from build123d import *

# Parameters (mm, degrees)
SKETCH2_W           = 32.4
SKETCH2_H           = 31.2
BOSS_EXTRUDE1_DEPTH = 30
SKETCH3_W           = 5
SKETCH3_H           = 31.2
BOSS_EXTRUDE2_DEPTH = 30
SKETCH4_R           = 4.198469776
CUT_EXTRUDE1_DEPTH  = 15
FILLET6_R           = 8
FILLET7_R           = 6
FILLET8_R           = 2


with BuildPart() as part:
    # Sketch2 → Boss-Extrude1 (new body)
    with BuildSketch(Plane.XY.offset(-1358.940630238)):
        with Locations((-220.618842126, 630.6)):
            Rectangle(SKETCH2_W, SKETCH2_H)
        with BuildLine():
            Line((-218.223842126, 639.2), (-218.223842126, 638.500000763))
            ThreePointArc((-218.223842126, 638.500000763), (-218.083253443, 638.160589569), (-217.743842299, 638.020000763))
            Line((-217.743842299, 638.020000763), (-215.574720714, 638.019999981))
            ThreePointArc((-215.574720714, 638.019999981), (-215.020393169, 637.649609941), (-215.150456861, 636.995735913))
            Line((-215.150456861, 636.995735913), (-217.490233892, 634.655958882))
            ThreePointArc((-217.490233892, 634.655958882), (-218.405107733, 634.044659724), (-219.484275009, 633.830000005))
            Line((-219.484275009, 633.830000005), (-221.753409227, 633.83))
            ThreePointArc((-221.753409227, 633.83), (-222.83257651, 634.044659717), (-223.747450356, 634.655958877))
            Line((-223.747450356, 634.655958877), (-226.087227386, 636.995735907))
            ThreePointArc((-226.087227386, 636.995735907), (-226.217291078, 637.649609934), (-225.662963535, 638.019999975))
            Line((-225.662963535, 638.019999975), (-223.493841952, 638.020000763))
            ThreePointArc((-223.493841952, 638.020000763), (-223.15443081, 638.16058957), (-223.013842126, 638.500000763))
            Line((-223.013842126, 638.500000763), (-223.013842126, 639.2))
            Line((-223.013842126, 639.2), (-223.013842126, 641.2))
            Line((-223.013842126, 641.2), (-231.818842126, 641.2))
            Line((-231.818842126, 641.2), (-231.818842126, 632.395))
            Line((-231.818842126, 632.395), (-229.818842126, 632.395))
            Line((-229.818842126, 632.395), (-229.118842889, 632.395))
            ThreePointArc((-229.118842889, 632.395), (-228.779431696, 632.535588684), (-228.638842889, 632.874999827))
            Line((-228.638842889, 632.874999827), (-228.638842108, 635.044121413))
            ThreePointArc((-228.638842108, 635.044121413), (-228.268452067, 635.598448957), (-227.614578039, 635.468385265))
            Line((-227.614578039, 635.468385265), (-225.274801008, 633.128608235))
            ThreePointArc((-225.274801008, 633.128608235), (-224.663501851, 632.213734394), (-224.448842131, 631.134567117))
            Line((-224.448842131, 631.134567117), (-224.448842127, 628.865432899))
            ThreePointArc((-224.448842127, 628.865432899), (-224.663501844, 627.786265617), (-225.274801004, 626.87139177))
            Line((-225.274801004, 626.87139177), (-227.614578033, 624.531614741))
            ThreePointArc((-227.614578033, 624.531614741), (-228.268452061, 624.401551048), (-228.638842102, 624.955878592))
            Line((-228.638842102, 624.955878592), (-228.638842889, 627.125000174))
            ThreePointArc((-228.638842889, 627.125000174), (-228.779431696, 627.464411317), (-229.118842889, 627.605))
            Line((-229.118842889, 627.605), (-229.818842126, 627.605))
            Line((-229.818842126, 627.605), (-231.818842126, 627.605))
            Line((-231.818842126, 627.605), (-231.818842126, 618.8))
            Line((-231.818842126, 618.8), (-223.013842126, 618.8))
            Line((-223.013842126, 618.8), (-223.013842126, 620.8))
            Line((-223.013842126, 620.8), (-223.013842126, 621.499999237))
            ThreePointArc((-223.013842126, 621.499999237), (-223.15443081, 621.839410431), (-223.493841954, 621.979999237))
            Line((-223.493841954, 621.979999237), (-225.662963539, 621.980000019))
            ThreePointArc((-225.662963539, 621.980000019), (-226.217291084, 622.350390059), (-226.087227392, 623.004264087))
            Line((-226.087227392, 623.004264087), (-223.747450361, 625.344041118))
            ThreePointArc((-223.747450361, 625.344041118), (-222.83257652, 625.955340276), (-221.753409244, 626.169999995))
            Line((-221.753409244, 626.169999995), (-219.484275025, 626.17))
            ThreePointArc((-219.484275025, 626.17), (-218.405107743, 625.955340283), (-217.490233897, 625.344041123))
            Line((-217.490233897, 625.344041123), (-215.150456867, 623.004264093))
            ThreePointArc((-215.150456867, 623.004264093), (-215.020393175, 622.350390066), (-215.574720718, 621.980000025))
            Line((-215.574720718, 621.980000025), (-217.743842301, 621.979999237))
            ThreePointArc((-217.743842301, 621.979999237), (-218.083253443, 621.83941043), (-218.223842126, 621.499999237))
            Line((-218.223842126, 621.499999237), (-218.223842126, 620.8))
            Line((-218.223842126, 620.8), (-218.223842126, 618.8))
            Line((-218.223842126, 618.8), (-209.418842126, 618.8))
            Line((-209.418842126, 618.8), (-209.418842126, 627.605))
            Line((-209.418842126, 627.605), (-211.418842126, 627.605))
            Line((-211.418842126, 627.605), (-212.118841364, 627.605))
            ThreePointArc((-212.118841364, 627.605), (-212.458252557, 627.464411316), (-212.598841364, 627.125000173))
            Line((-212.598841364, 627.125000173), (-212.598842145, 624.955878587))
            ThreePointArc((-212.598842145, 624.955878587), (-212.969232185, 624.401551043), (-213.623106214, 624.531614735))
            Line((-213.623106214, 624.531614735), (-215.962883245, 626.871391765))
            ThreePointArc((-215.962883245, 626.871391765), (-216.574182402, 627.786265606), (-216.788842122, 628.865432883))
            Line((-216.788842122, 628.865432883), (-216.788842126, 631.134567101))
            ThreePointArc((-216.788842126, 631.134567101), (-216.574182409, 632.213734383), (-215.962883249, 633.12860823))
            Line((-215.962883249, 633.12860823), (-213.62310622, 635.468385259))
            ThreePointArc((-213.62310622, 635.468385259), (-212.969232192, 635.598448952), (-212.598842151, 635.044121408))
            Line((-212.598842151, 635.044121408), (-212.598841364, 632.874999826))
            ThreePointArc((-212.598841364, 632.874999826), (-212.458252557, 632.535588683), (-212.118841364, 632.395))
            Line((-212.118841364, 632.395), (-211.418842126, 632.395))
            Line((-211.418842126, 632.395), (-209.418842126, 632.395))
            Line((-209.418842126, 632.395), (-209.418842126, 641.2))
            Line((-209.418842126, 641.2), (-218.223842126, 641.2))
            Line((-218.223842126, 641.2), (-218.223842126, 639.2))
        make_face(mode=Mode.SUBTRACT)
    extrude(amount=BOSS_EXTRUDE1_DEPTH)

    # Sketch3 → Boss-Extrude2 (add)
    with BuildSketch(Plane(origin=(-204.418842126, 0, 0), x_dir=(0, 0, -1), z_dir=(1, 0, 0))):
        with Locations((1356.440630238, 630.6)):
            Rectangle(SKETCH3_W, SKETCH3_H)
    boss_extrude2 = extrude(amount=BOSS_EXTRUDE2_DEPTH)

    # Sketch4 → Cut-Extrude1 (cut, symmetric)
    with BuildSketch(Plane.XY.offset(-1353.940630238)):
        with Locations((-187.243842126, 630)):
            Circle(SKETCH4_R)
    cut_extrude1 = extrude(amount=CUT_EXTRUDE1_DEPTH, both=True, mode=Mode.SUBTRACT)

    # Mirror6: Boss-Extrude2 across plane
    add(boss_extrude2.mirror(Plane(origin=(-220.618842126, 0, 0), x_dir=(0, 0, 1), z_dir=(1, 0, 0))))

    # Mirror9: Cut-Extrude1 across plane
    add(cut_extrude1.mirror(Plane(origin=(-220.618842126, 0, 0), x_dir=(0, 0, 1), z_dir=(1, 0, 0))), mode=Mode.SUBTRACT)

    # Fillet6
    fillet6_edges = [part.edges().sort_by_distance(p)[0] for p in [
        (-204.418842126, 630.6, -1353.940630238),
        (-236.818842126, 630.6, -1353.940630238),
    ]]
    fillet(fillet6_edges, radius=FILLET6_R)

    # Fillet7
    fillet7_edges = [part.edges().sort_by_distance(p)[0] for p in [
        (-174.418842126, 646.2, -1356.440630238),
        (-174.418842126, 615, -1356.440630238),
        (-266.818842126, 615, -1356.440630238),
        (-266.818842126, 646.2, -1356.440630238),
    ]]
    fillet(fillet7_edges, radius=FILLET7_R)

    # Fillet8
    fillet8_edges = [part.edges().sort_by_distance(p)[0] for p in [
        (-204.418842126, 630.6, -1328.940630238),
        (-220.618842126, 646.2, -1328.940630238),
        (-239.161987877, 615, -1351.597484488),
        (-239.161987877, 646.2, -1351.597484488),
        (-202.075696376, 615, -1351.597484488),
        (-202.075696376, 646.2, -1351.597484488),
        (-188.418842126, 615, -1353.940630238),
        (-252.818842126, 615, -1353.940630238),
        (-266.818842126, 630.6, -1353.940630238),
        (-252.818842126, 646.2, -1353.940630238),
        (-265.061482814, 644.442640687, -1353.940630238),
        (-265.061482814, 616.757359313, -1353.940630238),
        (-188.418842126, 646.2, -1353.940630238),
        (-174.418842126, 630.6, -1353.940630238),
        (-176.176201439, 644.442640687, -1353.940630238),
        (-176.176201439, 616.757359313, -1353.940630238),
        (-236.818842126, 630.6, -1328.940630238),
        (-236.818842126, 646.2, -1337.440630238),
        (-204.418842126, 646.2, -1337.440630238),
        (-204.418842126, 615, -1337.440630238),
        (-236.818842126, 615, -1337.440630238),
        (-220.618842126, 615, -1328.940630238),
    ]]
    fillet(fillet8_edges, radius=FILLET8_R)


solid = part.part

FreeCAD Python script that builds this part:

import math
import FreeCAD as App
import Part
import Sketcher
Q = App.Units.Quantity


def edges_at(feature, points):
    """Names of the edges that pass closest to the given points."""
    edges = feature.Shape.Edges
    near = lambda p: min(range(len(edges)), key=lambda i: edges[i].distToShape(Part.Vertex(*p))[0])
    return sorted({f"Edge{near(p) + 1}" for p in points})

doc = App.newDocument("Part")
params = doc.addObject("Spreadsheet::Sheet", "Params")
for row, (alias, value) in enumerate([
    ("sketch1_radius", "0.6 mm"),
    ("sketch1_radius2", "0.48 mm"),
    ("sketch1_radius3", "2.82 mm"),
    ("sketch1_width", "32.4 mm"),
    ("sketch1_width2", "2.699999 mm"),
    ("pad1_length", "30 mm"),
    ("sketch2_height", "5 mm"),
    ("sketch2_width", "31.2 mm"),
    ("pad2_length", "30 mm"),
    ("pocket1_length", "30 mm"),
    ("fillet_radius", "8 mm"),
    ("fillet2_radius", "6 mm"),
    ("fillet3_radius", "2 mm"),
], start=1):
    params.set(f"A{row}", alias)
    params.set(f"B{row}", "=" + value)
    params.setAlias(f"B{row}", alias)

body = doc.addObject("PartDesign::Body", "Body")

# Sketch on XY plane
sketch1 = body.newObject("Sketcher::SketchObject", "Sketch")
sketch1.AttachmentSupport = (doc.getObject("XY_Plane"), [""])
sketch1.MapMode = "FlatFace"
sketch1.AttachmentOffset = App.Placement(App.Vector(0, 0, -1358.94063), App.Rotation())
sketch1.addGeometry(Part.LineSegment(App.Vector(-236.818842, 646.2, 0), App.Vector(-236.818842, 615, 0)), False)
sketch1.addGeometry(Part.LineSegment(App.Vector(-236.818842, 615, 0), App.Vector(-204.418842, 615, 0)), False)
sketch1.addGeometry(Part.LineSegment(App.Vector(-204.418842, 615, 0), App.Vector(-204.418842, 646.2, 0)), False)
sketch1.addGeometry(Part.LineSegment(App.Vector(-204.418842, 646.2, 0), App.Vector(-236.818842, 646.2, 0)), False)
sketch1.addGeometry(Part.ArcOfCircle(Part.Circle(App.Vector(-217.743842, 638.500001, 0), App.Vector(0, 0, 1), 0.48), math.radians(180), math.radians(269.99998)), False)
sketch1.addGeometry(Part.LineSegment(App.Vector(-218.223842, 638.500001, 0), App.Vector(-218.223842, 641.2, 0)), False)
sketch1.addGeometry(Part.LineSegment(App.Vector(-218.223842, 641.2, 0), App.Vector(-209.418842, 641.2, 0)), False)
sketch1.addGeometry(Part.LineSegment(App.Vector(-209.418842, 641.2, 0), App.Vector(-209.418842, 632.395, 0)), False)
sketch1.addGeometry(Part.LineSegment(App.Vector(-209.418842, 632.395, 0), App.Vector(-212.118841, 632.395, 0)), False)
sketch1.addGeometry(Part.ArcOfCircle(Part.Circle(App.Vector(-212.118841, 632.875, 0), App.Vector(0, 0, 1), 0.48), math.radians(-179.999979), math.radians(-90)), False)
sketch1.addGeometry(Part.LineSegment(App.Vector(-212.598841, 632.875, 0), App.Vector(-212.598842, 635.044121, 0)), False)
sketch1.addGeometry(Part.ArcOfCircle(Part.Circle(App.Vector(-213.198842, 635.044121, 0), App.Vector(0, 0, 1), 0.6), math.radians(0.000021), math.radians(135)), False)
sketch1.addGeometry(Part.LineSegment(App.Vector(-213.623106, 635.468385, 0), App.Vector(-215.962883, 633.128608, 0)), False)
sketch1.addGeometry(Part.ArcOfCircle(Part.Circle(App.Vector(-213.968842, 631.134567, 0), App.Vector(0, 0, 1), 2.82), math.radians(135), math.radians(180)), False)
sketch1.addGeometry(Part.LineSegment(App.Vector(-216.788842, 631.134567, 0), App.Vector(-216.788842, 628.865433, 0)), False)
sketch1.addGeometry(Part.ArcOfCircle(Part.Circle(App.Vector(-213.968842, 628.865433, 0), App.Vector(0, 0, 1), 2.82), math.radians(-180), math.radians(-135)), False)
sketch1.addGeometry(Part.LineSegment(App.Vector(-215.962883, 626.871392, 0), App.Vector(-213.623106, 624.531615, 0)), False)
sketch1.addGeometry(Part.ArcOfCircle(Part.Circle(App.Vector(-213.198842, 624.955879, 0), App.Vector(0, 0, 1), 0.6), math.radians(-135), math.radians(-0.000021)), False)
sketch1.addGeometry(Part.LineSegment(App.Vector(-212.598842, 624.955879, 0), App.Vector(-212.598841, 627.125, 0)), False)
sketch1.addGeometry(Part.ArcOfCircle(Part.Circle(App.Vector(-212.118841, 627.125, 0), App.Vector(0, 0, 1), 0.48), math.radians(90), math.radians(179.999979)), False)
sketch1.addGeometry(Part.LineSegment(App.Vector(-212.118841, 627.605, 0), App.Vector(-209.418842, 627.605, 0)), False)
sketch1.addGeometry(Part.LineSegment(App.Vector(-209.418842, 627.605, 0), App.Vector(-209.418842, 618.8, 0)), False)
sketch1.addGeometry(Part.LineSegment(App.Vector(-209.418842, 618.8, 0), App.Vector(-218.223842, 618.8, 0)), False)
sketch1.addGeometry(Part.LineSegment(App.Vector(-218.223842, 618.8, 0), App.Vector(-218.223842, 621.499999, 0)), False)
sketch1.addGeometry(Part.ArcOfCircle(Part.Circle(App.Vector(-217.743842, 621.499999, 0), App.Vector(0, 0, 1), 0.48), math.radians(90.000021), math.radians(180)), False)
sketch1.addGeometry(Part.LineSegment(App.Vector(-217.743842, 621.979999, 0), App.Vector(-215.574721, 621.98, 0)), False)
sketch1.addGeometry(Part.ArcOfCircle(Part.Circle(App.Vector(-215.574721, 622.58, 0), App.Vector(0, 0, 1), 0.6), math.radians(-89.999979), math.radians(45)), False)
sketch1.addGeometry(Part.LineSegment(App.Vector(-215.150457, 623.004264, 0), App.Vector(-217.490234, 625.344041, 0)), False)
sketch1.addGeometry(Part.ArcOfCircle(Part.Circle(App.Vector(-219.484275, 623.35, 0), App.Vector(0, 0, 1), 2.82), math.radians(45), math.radians(90)), False)
sketch1.addGeometry(Part.LineSegment(App.Vector(-219.484275, 626.17, 0), App.Vector(-221.753409, 626.17, 0)), False)
sketch1.addGeometry(Part.ArcOfCircle(Part.Circle(App.Vector(-221.753409, 623.35, 0), App.Vector(0, 0, 1), 2.82), math.radians(90), math.radians(135)), False)
sketch1.addGeometry(Part.LineSegment(App.Vector(-223.74745, 625.344041, 0), App.Vector(-226.087227, 623.004264, 0)), False)
sketch1.addGeometry(Part.ArcOfCircle(Part.Circle(App.Vector(-225.662963, 622.58, 0), App.Vector(0, 0, 1), 0.6), math.radians(135), math.radians(269.999979)), False)
sketch1.addGeometry(Part.LineSegment(App.Vector(-225.662964, 621.98, 0), App.Vector(-223.493842, 621.979999, 0)), False)
sketch1.addGeometry(Part.ArcOfCircle(Part.Circle(App.Vector(-223.493842, 621.499999, 0), App.Vector(0, 0, 1), 0.48), math.radians(0), math.radians(89.999979)), False)
sketch1.addGeometry(Part.LineSegment(App.Vector(-223.013842, 621.499999, 0), App.Vector(-223.013842, 618.8, 0)), False)
sketch1.addGeometry(Part.LineSegment(App.Vector(-223.013842, 618.8, 0), App.Vector(-231.818842, 618.8, 0)), False)
sketch1.addGeometry(Part.LineSegment(App.Vector(-231.818842, 618.8, 0), App.Vector(-231.818842, 627.605, 0)), False)
sketch1.addGeometry(Part.LineSegment(App.Vector(-231.818842, 627.605, 0), App.Vector(-229.118843, 627.605, 0)), False)
sketch1.addGeometry(Part.ArcOfCircle(Part.Circle(App.Vector(-229.118843, 627.125, 0), App.Vector(0, 0, 1), 0.48), math.radians(0.000021), math.radians(90)), False)
sketch1.addGeometry(Part.LineSegment(App.Vector(-228.638843, 627.125, 0), App.Vector(-228.638842, 624.955879, 0)), False)
sketch1.addGeometry(Part.ArcOfCircle(Part.Circle(App.Vector(-228.038842, 624.955879, 0), App.Vector(0, 0, 1), 0.6), math.radians(-179.999979), math.radians(-45)), False)
sketch1.addGeometry(Part.LineSegment(App.Vector(-227.614578, 624.531615, 0), App.Vector(-225.274801, 626.871392, 0)), False)
sketch1.addGeometry(Part.ArcOfCircle(Part.Circle(App.Vector(-227.268842, 628.865433, 0), App.Vector(0, 0, 1), 2.82), math.radians(-45), math.radians(0)), False)
sketch1.addGeometry(Part.LineSegment(App.Vector(-224.448842, 628.865433, 0), App.Vector(-224.448842, 631.134567, 0)), False)
sketch1.addGeometry(Part.ArcOfCircle(Part.Circle(App.Vector(-227.268842, 631.134567, 0), App.Vector(0, 0, 1), 2.82), math.radians(0), math.radians(45)), False)
sketch1.addGeometry(Part.LineSegment(App.Vector(-225.274801, 633.128608, 0), App.Vector(-227.614578, 635.468385, 0)), False)
sketch1.addGeometry(Part.ArcOfCircle(Part.Circle(App.Vector(-228.038842, 635.044121, 0), App.Vector(0, 0, 1), 0.6), math.radians(45), math.radians(179.999979)), False)
sketch1.addGeometry(Part.LineSegment(App.Vector(-228.638842, 635.044121, 0), App.Vector(-228.638843, 632.875, 0)), False)
sketch1.addGeometry(Part.ArcOfCircle(Part.Circle(App.Vector(-229.118843, 632.875, 0), App.Vector(0, 0, 1), 0.48), math.radians(-90), math.radians(-0.000021)), False)
sketch1.addGeometry(Part.LineSegment(App.Vector(-229.118843, 632.395, 0), App.Vector(-231.818842, 632.395, 0)), False)
sketch1.addGeometry(Part.LineSegment(App.Vector(-231.818842, 632.395, 0), App.Vector(-231.818842, 641.2, 0)), False)
sketch1.addGeometry(Part.LineSegment(App.Vector(-231.818842, 641.2, 0), App.Vector(-223.013842, 641.2, 0)), False)
sketch1.addGeometry(Part.LineSegment(App.Vector(-223.013842, 641.2, 0), App.Vector(-223.013842, 638.500001, 0)), False)
sketch1.addGeometry(Part.ArcOfCircle(Part.Circle(App.Vector(-223.493842, 638.500001, 0), App.Vector(0, 0, 1), 0.48), math.radians(-89.999979), math.radians(0)), False)
sketch1.addGeometry(Part.LineSegment(App.Vector(-223.493842, 638.020001, 0), App.Vector(-225.662964, 638.02, 0)), False)
sketch1.addGeometry(Part.ArcOfCircle(Part.Circle(App.Vector(-225.662963, 637.42, 0), App.Vector(0, 0, 1), 0.6), math.radians(90.000021), math.radians(225)), False)
sketch1.addGeometry(Part.LineSegment(App.Vector(-226.087227, 636.995736, 0), App.Vector(-223.74745, 634.655959, 0)), False)
sketch1.addGeometry(Part.ArcOfCircle(Part.Circle(App.Vector(-221.753409, 636.65, 0), App.Vector(0, 0, 1), 2.82), math.radians(-135), math.radians(-90)), False)
sketch1.addGeometry(Part.LineSegment(App.Vector(-221.753409, 633.83, 0), App.Vector(-219.484275, 633.83, 0)), False)
sketch1.addGeometry(Part.ArcOfCircle(Part.Circle(App.Vector(-219.484275, 636.65, 0), App.Vector(0, 0, 1), 2.82), math.radians(-90), math.radians(-45)), False)
sketch1.addGeometry(Part.LineSegment(App.Vector(-217.490234, 634.655959, 0), App.Vector(-215.150457, 636.995736, 0)), False)
sketch1.addGeometry(Part.ArcOfCircle(Part.Circle(App.Vector(-215.574721, 637.42, 0), App.Vector(0, 0, 1), 0.6), math.radians(-45), math.radians(89.999979)), False)
sketch1.addGeometry(Part.LineSegment(App.Vector(-215.574721, 638.02, 0), App.Vector(-217.743842, 638.020001, 0)), False)
sketch1.addConstraint(Sketcher.Constraint("Coincident", 0, 2, 1, 1))
sketch1.addConstraint(Sketcher.Constraint("Coincident", 1, 2, 2, 1))
sketch1.addConstraint(Sketcher.Constraint("Coincident", 2, 2, 3, 1))
sketch1.addConstraint(Sketcher.Constraint("Coincident", 3, 2, 0, 1))
sketch1.addConstraint(Sketcher.Constraint("Tangent", 4, 1, 5, 1))
sketch1.addConstraint(Sketcher.Constraint("Coincident", 5, 2, 6, 1))
sketch1.addConstraint(Sketcher.Constraint("Coincident", 6, 2, 7, 1))
sketch1.addConstraint(Sketcher.Constraint("Coincident", 7, 2, 8, 1))
sketch1.addConstraint(Sketcher.Constraint("Tangent", 8, 2, 9, 2))
sketch1.addConstraint(Sketcher.Constraint("Tangent", 9, 1, 10, 1))
sketch1.addConstraint(Sketcher.Constraint("Tangent", 10, 2, 11, 1))
sketch1.addConstraint(Sketcher.Constraint("Tangent", 11, 2, 12, 1))
sketch1.addConstraint(Sketcher.Constraint("Tangent", 12, 2, 13, 1))
sketch1.addConstraint(Sketcher.Constraint("Tangent", 13, 2, 14, 1))
sketch1.addConstraint(Sketcher.Constraint("Tangent", 14, 2, 15, 1))
sketch1.addConstraint(Sketcher.Constraint("Tangent", 15, 2, 16, 1))
sketch1.addConstraint(Sketcher.Constraint("Tangent", 16, 2, 17, 1))
sketch1.addConstraint(Sketcher.Constraint("Tangent", 17, 2, 18, 1))
sketch1.addConstraint(Sketcher.Constraint("Tangent", 18, 2, 19, 2))
sketch1.addConstraint(Sketcher.Constraint("Tangent", 19, 1, 20, 1))
sketch1.addConstraint(Sketcher.Constraint("Coincident", 20, 2, 21, 1))
sketch1.addConstraint(Sketcher.Constraint("Coincident", 21, 2, 22, 1))
sketch1.addConstraint(Sketcher.Constraint("Coincident", 22, 2, 23, 1))
sketch1.addConstraint(Sketcher.Constraint("Tangent", 23, 2, 24, 2))
sketch1.addConstraint(Sketcher.Constraint("Tangent", 24, 1, 25, 1))
sketch1.addConstraint(Sketcher.Constraint("Tangent", 25, 2, 26, 1))
sketch1.addConstraint(Sketcher.Constraint("Tangent", 26, 2, 27, 1))
sketch1.addConstraint(Sketcher.Constraint("Tangent", 27, 2, 28, 1))
sketch1.addConstraint(Sketcher.Constraint("Tangent", 28, 2, 29, 1))
sketch1.addConstraint(Sketcher.Constraint("Tangent", 29, 2, 30, 1))
sketch1.addConstraint(Sketcher.Constraint("Tangent", 30, 2, 31, 1))
sketch1.addConstraint(Sketcher.Constraint("Tangent", 31, 2, 32, 1))
sketch1.addConstraint(Sketcher.Constraint("Tangent", 32, 2, 33, 1))
sketch1.addConstraint(Sketcher.Constraint("Tangent", 33, 2, 34, 2))
sketch1.addConstraint(Sketcher.Constraint("Tangent", 34, 1, 35, 1))
sketch1.addConstraint(Sketcher.Constraint("Coincident", 35, 2, 36, 1))
sketch1.addConstraint(Sketcher.Constraint("Coincident", 36, 2, 37, 1))
sketch1.addConstraint(Sketcher.Constraint("Coincident", 37, 2, 38, 1))
sketch1.addConstraint(Sketcher.Constraint("Tangent", 38, 2, 39, 2))
sketch1.addConstraint(Sketcher.Constraint("Tangent", 39, 1, 40, 1))
sketch1.addConstraint(Sketcher.Constraint("Tangent", 40, 2, 41, 1))
sketch1.addConstraint(Sketcher.Constraint("Tangent", 41, 2, 42, 1))
sketch1.addConstraint(Sketcher.Constraint("Tangent", 42, 2, 43, 1))
sketch1.addConstraint(Sketcher.Constraint("Tangent", 43, 2, 44, 1))
sketch1.addConstraint(Sketcher.Constraint("Tangent", 44, 2, 45, 1))
sketch1.addConstraint(Sketcher.Constraint("Tangent", 45, 2, 46, 1))
sketch1.addConstraint(Sketcher.Constraint("Tangent", 46, 2, 47, 1))
sketch1.addConstraint(Sketcher.Constraint("Tangent", 47, 2, 48, 1))
sketch1.addConstraint(Sketcher.Constraint("Tangent", 48, 2, 49, 2))
sketch1.addConstraint(Sketcher.Constraint("Tangent", 49, 1, 50, 1))
sketch1.addConstraint(Sketcher.Constraint("Coincident", 50, 2, 51, 1))
sketch1.addConstraint(Sketcher.Constraint("Coincident", 51, 2, 52, 1))
sketch1.addConstraint(Sketcher.Constraint("Coincident", 52, 2, 53, 1))
sketch1.addConstraint(Sketcher.Constraint("Tangent", 53, 2, 54, 2))
sketch1.addConstraint(Sketcher.Constraint("Tangent", 54, 1, 55, 1))
sketch1.addConstraint(Sketcher.Constraint("Tangent", 55, 2, 56, 1))
sketch1.addConstraint(Sketcher.Constraint("Tangent", 56, 2, 57, 1))
sketch1.addConstraint(Sketcher.Constraint("Tangent", 57, 2, 58, 1))
sketch1.addConstraint(Sketcher.Constraint("Tangent", 58, 2, 59, 1))
sketch1.addConstraint(Sketcher.Constraint("Tangent", 59, 2, 60, 1))
sketch1.addConstraint(Sketcher.Constraint("Tangent", 60, 2, 61, 1))
sketch1.addConstraint(Sketcher.Constraint("Tangent", 61, 2, 62, 1))
sketch1.addConstraint(Sketcher.Constraint("Tangent", 62, 2, 63, 1))
sketch1.addConstraint(Sketcher.Constraint("Tangent", 63, 2, 4, 2))
sketch1.addConstraint(Sketcher.Constraint("Vertical", 0))
sketch1.addConstraint(Sketcher.Constraint("Horizontal", 1))
sketch1.addConstraint(Sketcher.Constraint("Vertical", 2))
sketch1.addConstraint(Sketcher.Constraint("Horizontal", 3))
sketch1.addConstraint(Sketcher.Constraint("Vertical", 5))
sketch1.addConstraint(Sketcher.Constraint("Horizontal", 6))
sketch1.addConstraint(Sketcher.Constraint("Vertical", 7))
sketch1.addConstraint(Sketcher.Constraint("Horizontal", 8))
sketch1.addConstraint(Sketcher.Constraint("Vertical", 10))
sketch1.addConstraint(Sketcher.Constraint("Vertical", 14))
sketch1.addConstraint(Sketcher.Constraint("Vertical", 18))
sketch1.addConstraint(Sketcher.Constraint("Horizontal", 20))
sketch1.addConstraint(Sketcher.Constraint("Vertical", 21))
sketch1.addConstraint(Sketcher.Constraint("Horizontal", 22))
sketch1.addConstraint(Sketcher.Constraint("Vertical", 23))
sketch1.addConstraint(Sketcher.Constraint("Horizontal", 25))
sketch1.addConstraint(Sketcher.Constraint("Horizontal", 29))
sketch1.addConstraint(Sketcher.Constraint("Horizontal", 33))
sketch1.addConstraint(Sketcher.Constraint("Vertical", 35))
sketch1.addConstraint(Sketcher.Constraint("Horizontal", 36))
sketch1.addConstraint(Sketcher.Constraint("Vertical", 37))
sketch1.addConstraint(Sketcher.Constraint("Horizontal", 38))
sketch1.addConstraint(Sketcher.Constraint("Vertical", 40))
sketch1.addConstraint(Sketcher.Constraint("Vertical", 44))
sketch1.addConstraint(Sketcher.Constraint("Vertical", 48))
sketch1.addConstraint(Sketcher.Constraint("Horizontal", 50))
sketch1.addConstraint(Sketcher.Constraint("Vertical", 51))
sketch1.addConstraint(Sketcher.Constraint("Horizontal", 52))
sketch1.addConstraint(Sketcher.Constraint("Vertical", 53))
sketch1.addConstraint(Sketcher.Constraint("Horizontal", 55))
sketch1.addConstraint(Sketcher.Constraint("Horizontal", 59))
sketch1.addConstraint(Sketcher.Constraint("Horizontal", 63))
sketch1.addConstraint(Sketcher.Constraint("Equal", 4, 9))
sketch1.addConstraint(Sketcher.Constraint("Equal", 13, 15))
sketch1.addConstraint(Sketcher.Constraint("Equal", 11, 17))
sketch1.addConstraint(Sketcher.Constraint("Equal", 9, 19))
sketch1.addConstraint(Sketcher.Constraint("Equal", 19, 24))
sketch1.addConstraint(Sketcher.Constraint("Equal", 17, 26))
sketch1.addConstraint(Sketcher.Constraint("Equal", 15, 28))
sketch1.addConstraint(Sketcher.Constraint("Equal", 28, 30))
sketch1.addConstraint(Sketcher.Constraint("Equal", 26, 32))
sketch1.addConstraint(Sketcher.Constraint("Equal", 24, 34))
sketch1.addConstraint(Sketcher.Constraint("Equal", 34, 39))
sketch1.addConstraint(Sketcher.Constraint("Equal", 32, 41))
sketch1.addConstraint(Sketcher.Constraint("Equal", 30, 43))
sketch1.addConstraint(Sketcher.Constraint("Equal", 43, 45))
sketch1.addConstraint(Sketcher.Constraint("Equal", 41, 47))
sketch1.addConstraint(Sketcher.Constraint("Equal", 39, 49))
sketch1.addConstraint(Sketcher.Constraint("Equal", 49, 54))
sketch1.addConstraint(Sketcher.Constraint("Equal", 47, 56))
sketch1.addConstraint(Sketcher.Constraint("Equal", 45, 58))
sketch1.addConstraint(Sketcher.Constraint("Equal", 58, 60))
sketch1.addConstraint(Sketcher.Constraint("Equal", 56, 62))
sketch1.addConstraint(Sketcher.Constraint("Perpendicular", 12, 16))
sketch1.addConstraint(Sketcher.Constraint("Parallel", 16, 27))
sketch1.addConstraint(Sketcher.Constraint("Perpendicular", 27, 31))
sketch1.addConstraint(Sketcher.Constraint("Parallel", 31, 42))
sketch1.addConstraint(Sketcher.Constraint("Perpendicular", 42, 46))
sketch1.addConstraint(Sketcher.Constraint("Parallel", 46, 57))
sketch1.addConstraint(Sketcher.Constraint("Perpendicular", 57, 61))
sketch1.addConstraint(Sketcher.Constraint("Horizontal", 26, 3, 32, 3))
sketch1.addConstraint(Sketcher.Constraint("Horizontal", 19, 3, 39, 3))
sketch1.addConstraint(Sketcher.Constraint("Horizontal", 17, 3, 41, 3))
sketch1.addConstraint(Sketcher.Constraint("Horizontal", 15, 3, 43, 3))
sketch1.addConstraint(Sketcher.Constraint("Horizontal", 13, 3, 45, 3))
sketch1.addConstraint(Sketcher.Constraint("Horizontal", 11, 3, 47, 3))
sketch1.addConstraint(Sketcher.Constraint("Horizontal", 9, 3, 49, 3))
sketch1.addConstraint(Sketcher.Constraint("Horizontal", 4, 3, 54, 3))
sketch1.addConstraint(Sketcher.Constraint("Horizontal", 27, 2, 30, 2))
sketch1.addConstraint(Sketcher.Constraint("Horizontal", 22, 2, 35, 2))
sketch1.addConstraint(Sketcher.Constraint("Horizontal", 6, 2, 51, 2))
sketch1.addConstraint(Sketcher.Constraint("Vertical", 11, 3, 17, 3))
sketch1.addConstraint(Sketcher.Constraint("Vertical", 4, 3, 24, 3))
sketch1.addConstraint(Sketcher.Constraint("Vertical", 34, 3, 54, 3))
sketch1.addConstraint(Sketcher.Constraint("Vertical", 32, 3, 56, 3))
sketch1.addConstraint(Sketcher.Constraint("Vertical", 30, 3, 58, 3))
sketch1.addConstraint(Sketcher.Constraint("Vertical", 28, 3, 60, 3))
sketch1.addConstraint(Sketcher.Constraint("Vertical", 7, 2, 20, 2))
sketch1.addConstraint(Sketcher.Constraint("Vertical", 37, 2, 50, 2))
sketch1.addConstraint(Sketcher.Constraint("Equal", 25, 33))
sketch1.addConstraint(Sketcher.Constraint("Equal", 22, 36))
sketch1.addConstraint(Sketcher.Constraint("Equal", 20, 38))
sketch1.addConstraint(Sketcher.Constraint("Equal", 50, 5))
sketch1.addConstraint(Sketcher.Constraint("Equal", 52, 7))
sketch1.addConstraint(Sketcher.Constraint("Equal", 63, 10))
sketch1.addConstraint(Sketcher.Constraint("Equal", 59, 14))
sketch1.addConstraint(Sketcher.Constraint("Equal", 10, 18))
sketch1.addConstraint(Sketcher.Constraint("Equal", 7, 21))
sketch1.addConstraint(Sketcher.Constraint("Equal", 5, 23))
sketch1.addConstraint(Sketcher.Constraint("Equal", 16, 27))
sketch1.addConstraint(Sketcher.Constraint("Radius", 11, Q("0.6 mm")))
sketch1.addConstraint(Sketcher.Constraint("Radius", 4, Q("0.48 mm")))
sketch1.addConstraint(Sketcher.Constraint("Radius", 13, Q("2.82 mm")))
sketch1.addConstraint(Sketcher.Constraint("DistanceX", 1, 1, 1, 2, Q("32.4 mm")))
sketch1.addConstraint(Sketcher.Constraint("DistanceX", 8, 2, 8, 1, Q("2.699999 mm")))
sketch1.addConstraint(Sketcher.Constraint("DistanceY", 0, 2, 0, 1, Q("31.2 mm")))
sketch1.addConstraint(Sketcher.Constraint("DistanceY", -1, 1, 0, 2, Q("615 mm")))
sketch1.addConstraint(Sketcher.Constraint("DistanceY", -1, 1, 4, 3, Q("638.500001 mm")))
sketch1.addConstraint(Sketcher.Constraint("DistanceY", -1, 1, 24, 3, Q("621.499999 mm")))
sketch1.addConstraint(Sketcher.Constraint("DistanceX", 6, 1, 6, 2, Q("8.805 mm")))
sketch1.addConstraint(Sketcher.Constraint("DistanceY", -1, 1, 28, 3, Q("623.35 mm")))
sketch1.addConstraint(Sketcher.Constraint("DistanceX", 25, 1, 25, 2, Q("2.169122 mm")))
sketch1.addConstraint(Sketcher.Constraint("DistanceX", 42, 2, -1, 1, Q("225.274801 mm")))
sketch1.addConstraint(Sketcher.Constraint("DistanceX", 0, 2, -1, 1, Q("236.818842 mm")))
sketch1.setExpression("Constraints[154]", "Params.sketch1_radius")
sketch1.setExpression("Constraints[155]", "Params.sketch1_radius2")
sketch1.setExpression("Constraints[156]", "Params.sketch1_radius3")
sketch1.setExpression("Constraints[157]", "Params.sketch1_width")
sketch1.setExpression("Constraints[158]", "Params.sketch1_width2")
pad1 = body.newObject("PartDesign::Pad", "Pad")
pad1.Profile = sketch1
pad1.setExpression("Length", "Params.pad1_length")

# Sketch on YZ plane
sketch2 = body.newObject("Sketcher::SketchObject", "Sketch001")
sketch2.AttachmentSupport = (doc.getObject("YZ_Plane"), [""])
sketch2.MapMode = "FlatFace"
sketch2.AttachmentOffset = App.Placement(App.Vector(0, 0, -204.418842), App.Rotation())
sketch2.addGeometry(Part.LineSegment(App.Vector(646.2, -1353.94063, 0), App.Vector(615, -1353.94063, 0)), False)
sketch2.addGeometry(Part.LineSegment(App.Vector(615, -1353.94063, 0), App.Vector(615, -1358.94063, 0)), False)
sketch2.addGeometry(Part.LineSegment(App.Vector(615, -1358.94063, 0), App.Vector(646.2, -1358.94063, 0)), False)
sketch2.addGeometry(Part.LineSegment(App.Vector(646.2, -1358.94063, 0), App.Vector(646.2, -1353.94063, 0)), False)
sketch2.addConstraint(Sketcher.Constraint("Coincident", 0, 2, 1, 1))
sketch2.addConstraint(Sketcher.Constraint("Coincident", 1, 2, 2, 1))
sketch2.addConstraint(Sketcher.Constraint("Coincident", 2, 2, 3, 1))
sketch2.addConstraint(Sketcher.Constraint("Coincident", 3, 2, 0, 1))
sketch2.addConstraint(Sketcher.Constraint("Horizontal", 0))
sketch2.addConstraint(Sketcher.Constraint("Vertical", 1))
sketch2.addConstraint(Sketcher.Constraint("Horizontal", 2))
sketch2.addConstraint(Sketcher.Constraint("Vertical", 3))
sketch2.addConstraint(Sketcher.Constraint("DistanceY", 1, 2, 1, 1, Q("5 mm")))
sketch2.addConstraint(Sketcher.Constraint("DistanceX", 0, 2, 0, 1, Q("31.2 mm")))
sketch2.addConstraint(Sketcher.Constraint("DistanceX", -1, 1, 0, 2, Q("615 mm")))
sketch2.addConstraint(Sketcher.Constraint("DistanceY", 0, 2, -1, 1, Q("1353.94063 mm")))
sketch2.setExpression("Constraints[8]", "Params.sketch2_height")
sketch2.setExpression("Constraints[9]", "Params.sketch2_width")
pad2 = body.newObject("PartDesign::Pad", "Pad001")
pad2.Profile = sketch2
pad2.setExpression("Length", "Params.pad2_length")

# Sketch on XY plane
sketch3 = body.newObject("Sketcher::SketchObject", "Sketch002")
sketch3.AttachmentSupport = (doc.getObject("XY_Plane"), [""])
sketch3.MapMode = "FlatFace"
sketch3.AttachmentOffset = App.Placement(App.Vector(0, 0, -1353.94063), App.Rotation())
sketch3.addGeometry(Part.Circle(App.Vector(-187.243842, 630, 0), App.Vector(0, 0, 1), 4.19847), False)
sketch3.addConstraint(Sketcher.Constraint("DistanceY", -1, 1, 0, 3, Q("630 mm")))
sketch3.addConstraint(Sketcher.Constraint("Diameter", 0, Q("8.39694 mm")))
sketch3.addConstraint(Sketcher.Constraint("DistanceX", 0, 3, -1, 1, Q("187.243842 mm")))
pocket1 = body.newObject("PartDesign::Pocket", "Pocket")
pocket1.Profile = sketch3
pocket1.setExpression("Length", "Params.pocket1_length")
pocket1.Midplane = True
doc.recompute()

datumplane = body.newObject("PartDesign::Plane", "DatumPlane")
datumplane.AttachmentSupport = (doc.getObject("YZ_Plane"), [""])
datumplane.MapMode = "FlatFace"
datumplane.AttachmentOffset = App.Placement(App.Vector(0, 0, -220.618842), App.Rotation())
mirrored = body.newObject("PartDesign::Mirrored", "Mirrored")
mirrored.Originals = [pad2]
mirrored.MirrorPlane = (datumplane, [""])
body.Tip = mirrored
doc.recompute()

datumplane2 = body.newObject("PartDesign::Plane", "DatumPlane001")
datumplane2.AttachmentSupport = (doc.getObject("YZ_Plane"), [""])
datumplane2.MapMode = "FlatFace"
datumplane2.AttachmentOffset = App.Placement(App.Vector(0, 0, -220.618842), App.Rotation())
mirrored2 = body.newObject("PartDesign::Mirrored", "Mirrored001")
mirrored2.Originals = [pocket1]
mirrored2.MirrorPlane = (datumplane2, [""])
body.Tip = mirrored2
doc.recompute()

fillet = body.newObject("PartDesign::Fillet", "Fillet")
fillet.Base = (mirrored2, edges_at(mirrored2, [(-204.419, 630.6, -1353.941), (-236.819, 630.6, -1353.941)]))
fillet.setExpression("Radius", "Params.fillet_radius")
doc.recompute()

fillet2 = body.newObject("PartDesign::Fillet", "Fillet001")
fillet2.Base = (fillet, edges_at(fillet, [
    (-174.419, 646.2, -1356.441),
    (-174.419, 615, -1356.441),
    (-266.819, 615, -1356.441),
    (-266.819, 646.2, -1356.441),
]))
fillet2.setExpression("Radius", "Params.fillet2_radius")
doc.recompute()

fillet3 = body.newObject("PartDesign::Fillet", "Fillet002")
fillet3.Base = (fillet2, edges_at(fillet2, [
    (-204.419, 630.6, -1328.941),
    (-220.619, 646.2, -1328.941),
    (-239.162, 615, -1351.597),
    (-239.162, 646.2, -1351.597),
    (-202.076, 615, -1351.597),
    (-202.076, 646.2, -1351.597),
    (-188.419, 615, -1353.941),
    (-252.819, 615, -1353.941),
    (-266.819, 630.6, -1353.941),
    (-252.819, 646.2, -1353.941),
    (-265.061, 644.443, -1353.941),
    (-265.061, 616.757, -1353.941),
    (-188.419, 646.2, -1353.941),
    (-174.419, 630.6, -1353.941),
    (-176.176, 644.443, -1353.941),
    (-176.176, 616.757, -1353.941),
    (-236.819, 630.6, -1328.941),
    (-236.819, 646.2, -1337.441),
    (-204.419, 646.2, -1337.441),
    (-204.419, 615, -1337.441),
    (-236.819, 615, -1337.441),
    (-220.619, 615, -1328.941),
]))
fillet3.setExpression("Radius", "Params.fillet3_radius")

doc.recompute()
